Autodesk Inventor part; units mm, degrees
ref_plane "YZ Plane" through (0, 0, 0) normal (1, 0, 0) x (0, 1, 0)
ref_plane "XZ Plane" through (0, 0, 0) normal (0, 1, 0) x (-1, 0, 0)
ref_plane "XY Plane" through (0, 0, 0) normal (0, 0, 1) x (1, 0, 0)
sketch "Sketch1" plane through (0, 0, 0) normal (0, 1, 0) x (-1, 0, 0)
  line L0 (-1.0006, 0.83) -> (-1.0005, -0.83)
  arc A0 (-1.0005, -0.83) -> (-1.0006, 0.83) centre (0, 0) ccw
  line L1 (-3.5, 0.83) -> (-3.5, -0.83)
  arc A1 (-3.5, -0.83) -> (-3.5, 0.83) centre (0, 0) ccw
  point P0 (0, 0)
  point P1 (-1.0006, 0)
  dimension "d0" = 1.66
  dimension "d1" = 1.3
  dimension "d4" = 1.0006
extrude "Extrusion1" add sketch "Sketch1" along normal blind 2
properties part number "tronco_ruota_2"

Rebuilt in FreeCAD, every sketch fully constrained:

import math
import FreeCAD as App
import Part
import Sketcher

doc = App.newDocument("Part")
body = doc.addObject("PartDesign::Body", "Body")

sketch1 = body.newObject("Sketcher::SketchObject", "Sketch")
sketch1.AttachmentSupport = (doc.getObject("XZ_Plane"), [""])
sketch1.MapMode = "FlatFace"
sketch1.addGeometry(Part.ArcOfCircle(Part.Circle(App.Vector(0, 0, 0), App.Vector(0, 0, 1), 3.597068), math.radians(13.340847), math.radians(346.659153)), False)
sketch1.addGeometry(Part.LineSegment(App.Vector(3.5, 0.83, 0), App.Vector(3.5, -0.83, 0)), False)
sketch1.addGeometry(Part.LineSegment(App.Vector(1.0005, -0.83, 0), App.Vector(1.0006, 0.83, 0)), False)
sketch1.addGeometry(Part.ArcOfCircle(Part.Circle(App.Vector(0, 0, 0), App.Vector(0, 0, 1), 1.299962), math.radians(39.675785), math.radians(320.321402)), False)
sketch1.addConstraint(Sketcher.Constraint("Coincident", 0, 1, 1, 1))
sketch1.addConstraint(Sketcher.Constraint("Coincident", 1, 2, 0, 2))
sketch1.addConstraint(Sketcher.Constraint("Coincident", 2, 1, 3, 2))
sketch1.addConstraint(Sketcher.Constraint("Coincident", 3, 1, 2, 2))
sketch1.addConstraint(Sketcher.Constraint("Vertical", 1))
sketch1.addConstraint(Sketcher.Constraint("Vertical", 2))
sketch1.addConstraint(Sketcher.Constraint("Coincident", 0, 3, -1, 1))
sketch1.addConstraint(Sketcher.Constraint("Coincident", 3, 3, -1, 1))
sketch1.addConstraint(Sketcher.Constraint("Horizontal", 1, 2, 2, 1))
sketch1.addConstraint(Sketcher.Constraint("Radius", 3, 1.3))
sketch1.addConstraint(Sketcher.Constraint("DistanceY", 1, 2, 1, 1, 1.66))
sketch1.addConstraint(Sketcher.Constraint("Radius", 0, 3.597))
pad1 = body.newObject("PartDesign::Pad", "Pad")
pad1.Profile = sketch1
pad1.Length = 2
pad1.Reversed = True

doc.recompute()
